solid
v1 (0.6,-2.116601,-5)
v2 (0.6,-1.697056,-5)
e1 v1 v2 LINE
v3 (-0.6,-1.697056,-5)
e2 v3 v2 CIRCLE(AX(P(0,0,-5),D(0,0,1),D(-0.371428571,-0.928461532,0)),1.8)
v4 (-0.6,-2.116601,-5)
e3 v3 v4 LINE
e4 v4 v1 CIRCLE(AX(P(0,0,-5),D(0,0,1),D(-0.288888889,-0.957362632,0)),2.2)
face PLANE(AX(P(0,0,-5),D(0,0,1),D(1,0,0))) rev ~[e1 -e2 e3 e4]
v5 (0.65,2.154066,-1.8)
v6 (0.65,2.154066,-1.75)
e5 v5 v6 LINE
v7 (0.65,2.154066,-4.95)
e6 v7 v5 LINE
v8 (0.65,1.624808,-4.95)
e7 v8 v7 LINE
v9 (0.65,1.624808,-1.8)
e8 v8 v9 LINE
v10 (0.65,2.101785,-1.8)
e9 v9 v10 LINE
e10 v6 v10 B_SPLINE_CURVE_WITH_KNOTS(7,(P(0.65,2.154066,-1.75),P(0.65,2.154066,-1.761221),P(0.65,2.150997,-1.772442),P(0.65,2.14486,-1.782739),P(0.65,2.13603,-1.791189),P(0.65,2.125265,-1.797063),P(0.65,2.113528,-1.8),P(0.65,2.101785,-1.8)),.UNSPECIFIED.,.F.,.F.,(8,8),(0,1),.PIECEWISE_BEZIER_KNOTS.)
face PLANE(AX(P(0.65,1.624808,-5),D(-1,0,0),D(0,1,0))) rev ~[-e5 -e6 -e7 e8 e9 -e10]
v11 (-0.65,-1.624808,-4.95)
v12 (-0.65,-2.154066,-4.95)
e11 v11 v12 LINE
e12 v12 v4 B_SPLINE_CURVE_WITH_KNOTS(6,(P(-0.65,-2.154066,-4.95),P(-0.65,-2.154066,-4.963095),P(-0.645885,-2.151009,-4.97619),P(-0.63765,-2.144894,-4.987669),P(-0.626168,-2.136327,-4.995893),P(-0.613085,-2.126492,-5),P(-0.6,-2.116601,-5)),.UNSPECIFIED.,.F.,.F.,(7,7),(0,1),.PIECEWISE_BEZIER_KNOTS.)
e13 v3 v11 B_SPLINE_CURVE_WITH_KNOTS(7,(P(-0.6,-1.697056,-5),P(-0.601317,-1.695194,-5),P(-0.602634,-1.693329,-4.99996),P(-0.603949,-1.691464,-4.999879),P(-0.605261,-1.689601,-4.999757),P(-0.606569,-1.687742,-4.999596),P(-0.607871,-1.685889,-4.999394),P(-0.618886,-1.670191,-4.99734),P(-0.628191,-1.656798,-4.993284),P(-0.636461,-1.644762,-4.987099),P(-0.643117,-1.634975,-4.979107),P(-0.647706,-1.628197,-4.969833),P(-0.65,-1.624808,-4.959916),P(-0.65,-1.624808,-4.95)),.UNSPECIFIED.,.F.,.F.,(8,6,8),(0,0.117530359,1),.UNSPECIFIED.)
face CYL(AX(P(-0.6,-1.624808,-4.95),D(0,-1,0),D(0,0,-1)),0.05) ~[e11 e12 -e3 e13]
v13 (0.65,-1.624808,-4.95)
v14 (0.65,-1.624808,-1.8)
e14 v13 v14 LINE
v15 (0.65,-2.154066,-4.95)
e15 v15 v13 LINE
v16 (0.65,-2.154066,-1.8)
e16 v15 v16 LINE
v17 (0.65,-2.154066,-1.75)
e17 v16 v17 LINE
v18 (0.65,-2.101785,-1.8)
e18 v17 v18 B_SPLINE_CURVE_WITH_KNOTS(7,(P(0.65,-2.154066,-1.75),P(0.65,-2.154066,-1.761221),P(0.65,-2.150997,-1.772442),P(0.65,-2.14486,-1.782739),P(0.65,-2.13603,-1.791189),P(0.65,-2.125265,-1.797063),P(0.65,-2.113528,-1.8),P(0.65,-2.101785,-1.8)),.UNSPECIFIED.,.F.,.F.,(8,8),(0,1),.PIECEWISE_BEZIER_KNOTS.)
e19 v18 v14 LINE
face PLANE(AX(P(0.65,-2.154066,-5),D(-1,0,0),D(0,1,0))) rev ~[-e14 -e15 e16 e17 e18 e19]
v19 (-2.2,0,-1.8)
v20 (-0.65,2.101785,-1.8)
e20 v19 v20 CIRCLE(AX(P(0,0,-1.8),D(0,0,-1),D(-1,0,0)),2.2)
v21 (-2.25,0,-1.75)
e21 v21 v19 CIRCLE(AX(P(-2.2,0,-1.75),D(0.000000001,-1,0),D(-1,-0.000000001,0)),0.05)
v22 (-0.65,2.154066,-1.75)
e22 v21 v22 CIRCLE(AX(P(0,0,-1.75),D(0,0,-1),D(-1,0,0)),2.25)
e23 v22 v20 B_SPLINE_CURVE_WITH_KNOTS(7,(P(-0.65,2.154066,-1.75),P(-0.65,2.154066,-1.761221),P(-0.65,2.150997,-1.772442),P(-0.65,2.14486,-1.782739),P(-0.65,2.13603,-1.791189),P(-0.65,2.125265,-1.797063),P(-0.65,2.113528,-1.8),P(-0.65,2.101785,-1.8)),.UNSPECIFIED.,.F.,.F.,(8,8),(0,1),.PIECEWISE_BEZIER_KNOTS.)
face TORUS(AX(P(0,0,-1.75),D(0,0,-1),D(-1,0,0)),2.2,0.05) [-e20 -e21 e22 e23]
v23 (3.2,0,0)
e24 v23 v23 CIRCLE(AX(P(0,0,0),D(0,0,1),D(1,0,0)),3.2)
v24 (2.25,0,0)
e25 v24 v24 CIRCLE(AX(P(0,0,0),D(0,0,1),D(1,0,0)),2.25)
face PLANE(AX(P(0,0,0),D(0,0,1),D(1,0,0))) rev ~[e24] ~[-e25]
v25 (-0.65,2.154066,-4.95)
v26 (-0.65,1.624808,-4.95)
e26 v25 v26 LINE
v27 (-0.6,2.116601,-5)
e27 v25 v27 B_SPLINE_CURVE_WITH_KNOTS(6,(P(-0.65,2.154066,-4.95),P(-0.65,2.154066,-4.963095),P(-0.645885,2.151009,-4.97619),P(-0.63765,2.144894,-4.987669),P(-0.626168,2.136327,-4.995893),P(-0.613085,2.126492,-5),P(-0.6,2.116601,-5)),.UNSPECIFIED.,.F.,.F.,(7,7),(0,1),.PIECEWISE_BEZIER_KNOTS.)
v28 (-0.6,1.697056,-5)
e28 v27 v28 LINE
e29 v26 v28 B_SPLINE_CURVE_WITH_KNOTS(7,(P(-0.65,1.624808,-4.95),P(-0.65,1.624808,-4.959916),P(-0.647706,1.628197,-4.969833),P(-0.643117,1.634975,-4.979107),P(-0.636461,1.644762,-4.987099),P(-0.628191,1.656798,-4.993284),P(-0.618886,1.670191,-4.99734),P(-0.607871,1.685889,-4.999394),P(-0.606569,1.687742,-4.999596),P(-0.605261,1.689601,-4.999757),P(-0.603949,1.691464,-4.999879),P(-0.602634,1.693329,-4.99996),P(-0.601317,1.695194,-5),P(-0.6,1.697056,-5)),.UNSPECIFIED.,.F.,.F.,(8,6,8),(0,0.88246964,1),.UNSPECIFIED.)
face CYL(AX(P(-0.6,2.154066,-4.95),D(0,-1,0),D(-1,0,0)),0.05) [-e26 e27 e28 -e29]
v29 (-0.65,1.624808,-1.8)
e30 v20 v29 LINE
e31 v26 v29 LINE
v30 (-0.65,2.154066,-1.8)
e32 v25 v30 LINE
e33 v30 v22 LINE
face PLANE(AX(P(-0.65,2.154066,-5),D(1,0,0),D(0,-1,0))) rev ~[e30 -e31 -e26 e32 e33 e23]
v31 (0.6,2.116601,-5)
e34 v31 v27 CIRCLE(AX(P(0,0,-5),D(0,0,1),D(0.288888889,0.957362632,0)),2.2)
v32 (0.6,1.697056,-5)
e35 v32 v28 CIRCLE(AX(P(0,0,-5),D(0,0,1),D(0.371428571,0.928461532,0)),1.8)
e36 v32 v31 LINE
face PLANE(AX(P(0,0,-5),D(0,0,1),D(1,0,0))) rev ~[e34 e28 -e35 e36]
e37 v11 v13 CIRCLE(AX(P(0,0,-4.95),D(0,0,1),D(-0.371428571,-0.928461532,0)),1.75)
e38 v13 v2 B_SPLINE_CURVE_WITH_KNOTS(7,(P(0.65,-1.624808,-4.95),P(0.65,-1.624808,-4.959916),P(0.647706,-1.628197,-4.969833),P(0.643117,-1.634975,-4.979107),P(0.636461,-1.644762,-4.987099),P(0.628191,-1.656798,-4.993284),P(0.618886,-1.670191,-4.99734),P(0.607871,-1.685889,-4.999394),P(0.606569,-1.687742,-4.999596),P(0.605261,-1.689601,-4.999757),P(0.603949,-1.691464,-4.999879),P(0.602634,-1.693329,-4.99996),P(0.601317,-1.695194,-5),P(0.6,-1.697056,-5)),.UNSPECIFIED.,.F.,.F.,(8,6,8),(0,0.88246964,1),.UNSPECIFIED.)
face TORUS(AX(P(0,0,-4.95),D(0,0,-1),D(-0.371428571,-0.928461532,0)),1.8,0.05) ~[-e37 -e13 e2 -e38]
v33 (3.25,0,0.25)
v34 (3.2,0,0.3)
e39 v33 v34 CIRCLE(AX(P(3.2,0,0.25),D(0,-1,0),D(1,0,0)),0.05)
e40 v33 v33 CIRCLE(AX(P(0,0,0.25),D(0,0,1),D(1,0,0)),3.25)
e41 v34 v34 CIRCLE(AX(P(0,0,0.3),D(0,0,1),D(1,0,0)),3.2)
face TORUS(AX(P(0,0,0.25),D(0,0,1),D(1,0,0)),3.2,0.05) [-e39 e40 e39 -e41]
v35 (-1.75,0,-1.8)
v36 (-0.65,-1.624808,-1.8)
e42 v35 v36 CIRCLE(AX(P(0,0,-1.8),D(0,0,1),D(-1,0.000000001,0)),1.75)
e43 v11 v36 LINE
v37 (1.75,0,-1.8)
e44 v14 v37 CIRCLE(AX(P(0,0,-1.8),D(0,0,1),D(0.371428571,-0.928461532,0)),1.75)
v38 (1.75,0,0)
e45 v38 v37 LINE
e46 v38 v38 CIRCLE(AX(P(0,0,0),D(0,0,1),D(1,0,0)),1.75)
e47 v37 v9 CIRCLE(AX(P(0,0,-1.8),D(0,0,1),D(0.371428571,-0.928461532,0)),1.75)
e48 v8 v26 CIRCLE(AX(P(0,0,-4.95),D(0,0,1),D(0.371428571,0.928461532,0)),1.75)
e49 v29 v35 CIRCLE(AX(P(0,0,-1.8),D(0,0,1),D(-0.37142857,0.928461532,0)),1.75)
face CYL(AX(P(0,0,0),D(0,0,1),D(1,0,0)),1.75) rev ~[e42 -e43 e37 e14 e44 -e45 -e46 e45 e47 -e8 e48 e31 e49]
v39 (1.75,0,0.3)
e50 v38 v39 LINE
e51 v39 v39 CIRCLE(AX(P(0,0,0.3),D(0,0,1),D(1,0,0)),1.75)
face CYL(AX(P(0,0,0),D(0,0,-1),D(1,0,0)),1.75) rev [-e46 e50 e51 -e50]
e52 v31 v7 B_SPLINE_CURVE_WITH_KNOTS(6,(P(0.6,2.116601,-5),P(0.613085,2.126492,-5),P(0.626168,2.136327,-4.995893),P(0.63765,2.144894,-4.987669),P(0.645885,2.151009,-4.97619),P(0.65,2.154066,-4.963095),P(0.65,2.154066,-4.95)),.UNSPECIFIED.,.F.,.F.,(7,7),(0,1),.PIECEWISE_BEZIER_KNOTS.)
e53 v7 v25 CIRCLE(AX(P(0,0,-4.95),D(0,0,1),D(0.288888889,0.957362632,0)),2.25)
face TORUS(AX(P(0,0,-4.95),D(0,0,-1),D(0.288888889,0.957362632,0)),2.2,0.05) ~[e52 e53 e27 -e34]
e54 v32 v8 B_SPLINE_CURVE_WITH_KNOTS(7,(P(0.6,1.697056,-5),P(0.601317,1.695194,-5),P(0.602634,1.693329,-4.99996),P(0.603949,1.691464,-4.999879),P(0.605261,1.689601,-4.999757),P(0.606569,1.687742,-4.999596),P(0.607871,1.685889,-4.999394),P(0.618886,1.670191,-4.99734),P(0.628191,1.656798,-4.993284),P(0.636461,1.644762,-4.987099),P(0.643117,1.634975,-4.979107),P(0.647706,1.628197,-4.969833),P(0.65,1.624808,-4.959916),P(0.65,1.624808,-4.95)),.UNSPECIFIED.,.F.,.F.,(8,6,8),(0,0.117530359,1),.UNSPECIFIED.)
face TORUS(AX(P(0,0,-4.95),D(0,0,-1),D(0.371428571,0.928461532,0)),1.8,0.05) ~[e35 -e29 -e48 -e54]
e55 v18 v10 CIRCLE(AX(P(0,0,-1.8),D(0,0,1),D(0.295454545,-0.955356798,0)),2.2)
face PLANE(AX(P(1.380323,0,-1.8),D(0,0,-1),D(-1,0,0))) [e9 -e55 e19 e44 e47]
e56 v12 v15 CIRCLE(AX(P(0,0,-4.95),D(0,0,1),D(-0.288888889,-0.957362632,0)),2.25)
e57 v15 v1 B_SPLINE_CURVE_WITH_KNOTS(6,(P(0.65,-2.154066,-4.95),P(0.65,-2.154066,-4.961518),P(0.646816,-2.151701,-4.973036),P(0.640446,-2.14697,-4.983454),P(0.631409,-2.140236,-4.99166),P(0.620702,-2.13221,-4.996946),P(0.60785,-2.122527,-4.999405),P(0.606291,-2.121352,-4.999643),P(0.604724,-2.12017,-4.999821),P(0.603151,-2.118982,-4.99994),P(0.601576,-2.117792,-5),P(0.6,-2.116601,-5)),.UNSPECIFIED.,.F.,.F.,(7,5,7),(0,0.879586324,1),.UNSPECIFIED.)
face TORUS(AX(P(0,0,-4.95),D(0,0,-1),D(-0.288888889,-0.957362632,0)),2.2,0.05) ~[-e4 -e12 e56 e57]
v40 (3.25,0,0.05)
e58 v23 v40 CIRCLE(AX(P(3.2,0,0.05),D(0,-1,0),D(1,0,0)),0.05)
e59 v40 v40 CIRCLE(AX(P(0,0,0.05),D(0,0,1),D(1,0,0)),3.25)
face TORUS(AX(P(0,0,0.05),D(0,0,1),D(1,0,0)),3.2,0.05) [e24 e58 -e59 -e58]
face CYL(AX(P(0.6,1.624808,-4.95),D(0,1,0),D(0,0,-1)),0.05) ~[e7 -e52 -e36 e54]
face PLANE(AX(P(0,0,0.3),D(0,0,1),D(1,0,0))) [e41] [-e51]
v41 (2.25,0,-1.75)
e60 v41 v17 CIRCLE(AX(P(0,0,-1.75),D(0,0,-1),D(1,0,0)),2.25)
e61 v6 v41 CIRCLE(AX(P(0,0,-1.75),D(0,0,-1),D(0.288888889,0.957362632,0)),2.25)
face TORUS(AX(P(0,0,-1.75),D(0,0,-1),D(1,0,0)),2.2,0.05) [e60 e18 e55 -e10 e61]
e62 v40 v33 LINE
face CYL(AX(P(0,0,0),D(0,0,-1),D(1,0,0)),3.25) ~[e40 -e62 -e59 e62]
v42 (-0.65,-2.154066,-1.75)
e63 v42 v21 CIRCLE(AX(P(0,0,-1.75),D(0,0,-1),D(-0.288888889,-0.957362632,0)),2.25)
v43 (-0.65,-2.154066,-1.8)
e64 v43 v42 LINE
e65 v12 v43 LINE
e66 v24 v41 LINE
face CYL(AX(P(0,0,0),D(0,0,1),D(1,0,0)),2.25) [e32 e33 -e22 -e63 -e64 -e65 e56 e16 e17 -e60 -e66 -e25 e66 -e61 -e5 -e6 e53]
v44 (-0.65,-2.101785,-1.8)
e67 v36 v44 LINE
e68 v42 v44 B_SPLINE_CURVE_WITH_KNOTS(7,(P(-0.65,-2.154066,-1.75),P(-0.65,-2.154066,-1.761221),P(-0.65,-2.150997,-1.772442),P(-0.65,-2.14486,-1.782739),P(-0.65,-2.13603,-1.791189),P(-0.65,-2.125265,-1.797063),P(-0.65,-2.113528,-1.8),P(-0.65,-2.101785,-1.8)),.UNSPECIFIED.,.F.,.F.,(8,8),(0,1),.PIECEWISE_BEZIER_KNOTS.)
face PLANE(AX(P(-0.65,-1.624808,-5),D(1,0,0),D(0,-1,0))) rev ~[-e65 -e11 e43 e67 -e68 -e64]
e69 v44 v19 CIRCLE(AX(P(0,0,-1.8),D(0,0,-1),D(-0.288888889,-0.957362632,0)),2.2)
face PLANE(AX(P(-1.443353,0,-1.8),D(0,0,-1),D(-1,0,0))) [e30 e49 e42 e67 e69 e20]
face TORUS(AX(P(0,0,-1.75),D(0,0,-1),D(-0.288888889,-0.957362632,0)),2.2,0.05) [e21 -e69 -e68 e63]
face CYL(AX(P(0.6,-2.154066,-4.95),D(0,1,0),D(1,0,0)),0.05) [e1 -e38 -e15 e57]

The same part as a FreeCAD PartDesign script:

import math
import FreeCAD as App
import Part
import Sketcher


def edges_at(feature, points):
    """Names of the edges that pass closest to the given points."""
    edges = feature.Shape.Edges
    near = lambda p: min(range(len(edges)), key=lambda i: edges[i].distToShape(Part.Vertex(*p))[0])
    return sorted({f"Edge{near(p) + 1}" for p in points})

doc = App.newDocument("Part")
body = doc.addObject("PartDesign::Body", "Body")

sketch1 = doc.addObject("Sketcher::SketchObject", "Sketch")
body.addObject(sketch1)
sketch1.AttachmentSupport = (doc.XY_Plane, [""])
sketch1.MapMode = "FlatFace"
sketch1.addGeometry([
    Part.Circle(App.Vector(0, 0, 0), App.Vector(0, 0, 1), 3.2),
    Part.Circle(App.Vector(0, 0, 0), App.Vector(0, 0, 1), 1.8),
], False)
sketch1.addConstraint([
    Sketcher.Constraint("Coincident", 0, 3, -1, 1),
    Sketcher.Constraint("Coincident", 1, 3, -1, 1),
    Sketcher.Constraint("Diameter", 0, 6.5),
    Sketcher.Constraint("Diameter", 1, 3.5),
])
pad1 = doc.addObject("PartDesign::Pad", "Pad")
body.addObject(pad1)
pad1.Profile = sketch1
pad1.Length = 0.3

sketch2 = doc.addObject("Sketcher::SketchObject", "Sketch001")
body.addObject(sketch2)
sketch2.AttachmentSupport = (doc.XY_Plane, [""])
sketch2.MapMode = "FlatFace"
sketch2.addGeometry([
    Part.Circle(App.Vector(0, 0, 0), App.Vector(0, 0, 1), 2.2),
    Part.Circle(App.Vector(0, 0, 0), App.Vector(0, 0, 1), 1.8),
], False)
sketch2.addConstraint([
    Sketcher.Constraint("Coincident", 0, 3, -1, 1),
    Sketcher.Constraint("Coincident", 1, 3, -1, 1),
    Sketcher.Constraint("Diameter", 0, 4.5),
    Sketcher.Constraint("Diameter", 1, 3.5),
])
pad2 = doc.addObject("PartDesign::Pad", "Pad001")
body.addObject(pad2)
pad2.Profile = sketch2
pad2.Length = 5
pad2.Reversed = True

sketch3 = doc.addObject("Sketcher::SketchObject", "Sketch002")
body.addObject(sketch3)
sketch3.AttachmentSupport = (doc.XY_Plane, [""])
sketch3.MapMode = "FlatFace"
sketch3.AttachmentOffset = App.Placement(App.Vector(0, 0, -5), App.Rotation())
sketch3.addGeometry([
    Part.ArcOfCircle(Part.Circle(App.Vector(0, 0, 0), App.Vector(0, 0, 1), 2.2), math.radians(-73), math.radians(73)),
    Part.LineSegment(App.Vector(0.7, -2.2, 0), App.Vector(0.7, -1.6, 0)),
    Part.ArcOfCircle(Part.Circle(App.Vector(0, 0, 0), App.Vector(0, 0, 1), 1.8), math.radians(-68), math.radians(68)),
    Part.LineSegment(App.Vector(0.7, 1.6, 0), App.Vector(0.7, 2.2, 0)),
    Part.LineSegment(App.Vector(-0.7, -1.6, 0), App.Vector(-0.7, -2.2, 0)),
    Part.ArcOfCircle(Part.Circle(App.Vector(0, 0, 0), App.Vector(0, 0, 1), 2.3), math.radians(-180), math.radians(-107)),
    Part.ArcOfCircle(Part.Circle(App.Vector(0, 0, 0), App.Vector(0, 0, 1), 2.3), math.radians(107), math.radians(180)),
    Part.LineSegment(App.Vector(-0.7, 2.2, 0), App.Vector(-0.7, 1.6, 0)),
    Part.ArcOfCircle(Part.Circle(App.Vector(0, 0, 0), App.Vector(0, 0, 1), 1.7), math.radians(112), math.radians(180)),
    Part.ArcOfCircle(Part.Circle(App.Vector(0, 0, 0), App.Vector(0, 0, 1), 1.7), math.radians(180), math.radians(248)),
], False)
sketch3.addConstraint([
    Sketcher.Constraint("Coincident", 0, 1, 1, 1),
    Sketcher.Constraint("Coincident", 1, 2, 2, 1),
    Sketcher.Constraint("Coincident", 2, 2, 3, 1),
    Sketcher.Constraint("Coincident", 3, 2, 0, 2),
    Sketcher.Constraint("Coincident", 4, 2, 5, 2),
    Sketcher.Constraint("Tangent", 5, 1, 6, 2),
    Sketcher.Constraint("Coincident", 6, 1, 7, 1),
    Sketcher.Constraint("Coincident", 7, 2, 8, 1),
    Sketcher.Constraint("Tangent", 8, 2, 9, 1),
    Sketcher.Constraint("Coincident", 9, 2, 4, 1),
    Sketcher.Constraint("Vertical", 1),
    Sketcher.Constraint("Vertical", 3),
    Sketcher.Constraint("Vertical", 4),
    Sketcher.Constraint("Vertical", 7),
    Sketcher.Constraint("Coincident", 0, 3, -1, 1),
    Sketcher.Constraint("Coincident", 2, 3, -1, 1),
    Sketcher.Constraint("Coincident", 5, 3, -1, 1),
    Sketcher.Constraint("Coincident", 8, 3, -1, 1),
    Sketcher.Constraint("Equal", 0, 5),
    Sketcher.Constraint("Equal", 5, 6),
    Sketcher.Constraint("Equal", 2, 8),
    Sketcher.Constraint("Equal", 8, 9),
    Sketcher.Constraint("PointOnObject", 5, 1, -1),
    Sketcher.Constraint("PointOnObject", 8, 2, -1),
    Sketcher.Constraint("Horizontal", 0, 1, 4, 2),
    Sketcher.Constraint("Horizontal", 3, 2, 6, 1),
    Sketcher.Constraint("Vertical", 1, 2, 2, 2),
    Sketcher.Constraint("Radius", 0, 2.25),
    Sketcher.Constraint("Radius", 2, 1.75),
    Sketcher.Constraint("DistanceX", 4, 2, 0, 1, 1.3),
])
pocket1 = doc.addObject("PartDesign::Pocket", "Pocket")
body.addObject(pocket1)
pocket1.Profile = sketch3
pocket1.Length = 3.2
pocket1.Reversed = True
doc.recompute()

fillet = doc.addObject("PartDesign::Fillet", "Fillet")
body.addObject(fillet)
fillet.Base = (pocket1, edges_at(pocket1, [
    (1.806, 1.342, -1.8),
    (0.65, -1.889, -5),
    (0.65, 1.889, -5),
    (0, -2.25, -5),
    (0, -1.75, -5),
    (-0.65, -1.889, -5),
    (-0.65, 1.889, -5),
    (-1.806, -1.342, -1.8),
    (-3.25, 0, 0),
    (-3.25, 0, 0.3),
    (0, 2.25, -5),
    (0, 1.75, -5),
]))
fillet.Radius = 0.05

doc.recompute()
